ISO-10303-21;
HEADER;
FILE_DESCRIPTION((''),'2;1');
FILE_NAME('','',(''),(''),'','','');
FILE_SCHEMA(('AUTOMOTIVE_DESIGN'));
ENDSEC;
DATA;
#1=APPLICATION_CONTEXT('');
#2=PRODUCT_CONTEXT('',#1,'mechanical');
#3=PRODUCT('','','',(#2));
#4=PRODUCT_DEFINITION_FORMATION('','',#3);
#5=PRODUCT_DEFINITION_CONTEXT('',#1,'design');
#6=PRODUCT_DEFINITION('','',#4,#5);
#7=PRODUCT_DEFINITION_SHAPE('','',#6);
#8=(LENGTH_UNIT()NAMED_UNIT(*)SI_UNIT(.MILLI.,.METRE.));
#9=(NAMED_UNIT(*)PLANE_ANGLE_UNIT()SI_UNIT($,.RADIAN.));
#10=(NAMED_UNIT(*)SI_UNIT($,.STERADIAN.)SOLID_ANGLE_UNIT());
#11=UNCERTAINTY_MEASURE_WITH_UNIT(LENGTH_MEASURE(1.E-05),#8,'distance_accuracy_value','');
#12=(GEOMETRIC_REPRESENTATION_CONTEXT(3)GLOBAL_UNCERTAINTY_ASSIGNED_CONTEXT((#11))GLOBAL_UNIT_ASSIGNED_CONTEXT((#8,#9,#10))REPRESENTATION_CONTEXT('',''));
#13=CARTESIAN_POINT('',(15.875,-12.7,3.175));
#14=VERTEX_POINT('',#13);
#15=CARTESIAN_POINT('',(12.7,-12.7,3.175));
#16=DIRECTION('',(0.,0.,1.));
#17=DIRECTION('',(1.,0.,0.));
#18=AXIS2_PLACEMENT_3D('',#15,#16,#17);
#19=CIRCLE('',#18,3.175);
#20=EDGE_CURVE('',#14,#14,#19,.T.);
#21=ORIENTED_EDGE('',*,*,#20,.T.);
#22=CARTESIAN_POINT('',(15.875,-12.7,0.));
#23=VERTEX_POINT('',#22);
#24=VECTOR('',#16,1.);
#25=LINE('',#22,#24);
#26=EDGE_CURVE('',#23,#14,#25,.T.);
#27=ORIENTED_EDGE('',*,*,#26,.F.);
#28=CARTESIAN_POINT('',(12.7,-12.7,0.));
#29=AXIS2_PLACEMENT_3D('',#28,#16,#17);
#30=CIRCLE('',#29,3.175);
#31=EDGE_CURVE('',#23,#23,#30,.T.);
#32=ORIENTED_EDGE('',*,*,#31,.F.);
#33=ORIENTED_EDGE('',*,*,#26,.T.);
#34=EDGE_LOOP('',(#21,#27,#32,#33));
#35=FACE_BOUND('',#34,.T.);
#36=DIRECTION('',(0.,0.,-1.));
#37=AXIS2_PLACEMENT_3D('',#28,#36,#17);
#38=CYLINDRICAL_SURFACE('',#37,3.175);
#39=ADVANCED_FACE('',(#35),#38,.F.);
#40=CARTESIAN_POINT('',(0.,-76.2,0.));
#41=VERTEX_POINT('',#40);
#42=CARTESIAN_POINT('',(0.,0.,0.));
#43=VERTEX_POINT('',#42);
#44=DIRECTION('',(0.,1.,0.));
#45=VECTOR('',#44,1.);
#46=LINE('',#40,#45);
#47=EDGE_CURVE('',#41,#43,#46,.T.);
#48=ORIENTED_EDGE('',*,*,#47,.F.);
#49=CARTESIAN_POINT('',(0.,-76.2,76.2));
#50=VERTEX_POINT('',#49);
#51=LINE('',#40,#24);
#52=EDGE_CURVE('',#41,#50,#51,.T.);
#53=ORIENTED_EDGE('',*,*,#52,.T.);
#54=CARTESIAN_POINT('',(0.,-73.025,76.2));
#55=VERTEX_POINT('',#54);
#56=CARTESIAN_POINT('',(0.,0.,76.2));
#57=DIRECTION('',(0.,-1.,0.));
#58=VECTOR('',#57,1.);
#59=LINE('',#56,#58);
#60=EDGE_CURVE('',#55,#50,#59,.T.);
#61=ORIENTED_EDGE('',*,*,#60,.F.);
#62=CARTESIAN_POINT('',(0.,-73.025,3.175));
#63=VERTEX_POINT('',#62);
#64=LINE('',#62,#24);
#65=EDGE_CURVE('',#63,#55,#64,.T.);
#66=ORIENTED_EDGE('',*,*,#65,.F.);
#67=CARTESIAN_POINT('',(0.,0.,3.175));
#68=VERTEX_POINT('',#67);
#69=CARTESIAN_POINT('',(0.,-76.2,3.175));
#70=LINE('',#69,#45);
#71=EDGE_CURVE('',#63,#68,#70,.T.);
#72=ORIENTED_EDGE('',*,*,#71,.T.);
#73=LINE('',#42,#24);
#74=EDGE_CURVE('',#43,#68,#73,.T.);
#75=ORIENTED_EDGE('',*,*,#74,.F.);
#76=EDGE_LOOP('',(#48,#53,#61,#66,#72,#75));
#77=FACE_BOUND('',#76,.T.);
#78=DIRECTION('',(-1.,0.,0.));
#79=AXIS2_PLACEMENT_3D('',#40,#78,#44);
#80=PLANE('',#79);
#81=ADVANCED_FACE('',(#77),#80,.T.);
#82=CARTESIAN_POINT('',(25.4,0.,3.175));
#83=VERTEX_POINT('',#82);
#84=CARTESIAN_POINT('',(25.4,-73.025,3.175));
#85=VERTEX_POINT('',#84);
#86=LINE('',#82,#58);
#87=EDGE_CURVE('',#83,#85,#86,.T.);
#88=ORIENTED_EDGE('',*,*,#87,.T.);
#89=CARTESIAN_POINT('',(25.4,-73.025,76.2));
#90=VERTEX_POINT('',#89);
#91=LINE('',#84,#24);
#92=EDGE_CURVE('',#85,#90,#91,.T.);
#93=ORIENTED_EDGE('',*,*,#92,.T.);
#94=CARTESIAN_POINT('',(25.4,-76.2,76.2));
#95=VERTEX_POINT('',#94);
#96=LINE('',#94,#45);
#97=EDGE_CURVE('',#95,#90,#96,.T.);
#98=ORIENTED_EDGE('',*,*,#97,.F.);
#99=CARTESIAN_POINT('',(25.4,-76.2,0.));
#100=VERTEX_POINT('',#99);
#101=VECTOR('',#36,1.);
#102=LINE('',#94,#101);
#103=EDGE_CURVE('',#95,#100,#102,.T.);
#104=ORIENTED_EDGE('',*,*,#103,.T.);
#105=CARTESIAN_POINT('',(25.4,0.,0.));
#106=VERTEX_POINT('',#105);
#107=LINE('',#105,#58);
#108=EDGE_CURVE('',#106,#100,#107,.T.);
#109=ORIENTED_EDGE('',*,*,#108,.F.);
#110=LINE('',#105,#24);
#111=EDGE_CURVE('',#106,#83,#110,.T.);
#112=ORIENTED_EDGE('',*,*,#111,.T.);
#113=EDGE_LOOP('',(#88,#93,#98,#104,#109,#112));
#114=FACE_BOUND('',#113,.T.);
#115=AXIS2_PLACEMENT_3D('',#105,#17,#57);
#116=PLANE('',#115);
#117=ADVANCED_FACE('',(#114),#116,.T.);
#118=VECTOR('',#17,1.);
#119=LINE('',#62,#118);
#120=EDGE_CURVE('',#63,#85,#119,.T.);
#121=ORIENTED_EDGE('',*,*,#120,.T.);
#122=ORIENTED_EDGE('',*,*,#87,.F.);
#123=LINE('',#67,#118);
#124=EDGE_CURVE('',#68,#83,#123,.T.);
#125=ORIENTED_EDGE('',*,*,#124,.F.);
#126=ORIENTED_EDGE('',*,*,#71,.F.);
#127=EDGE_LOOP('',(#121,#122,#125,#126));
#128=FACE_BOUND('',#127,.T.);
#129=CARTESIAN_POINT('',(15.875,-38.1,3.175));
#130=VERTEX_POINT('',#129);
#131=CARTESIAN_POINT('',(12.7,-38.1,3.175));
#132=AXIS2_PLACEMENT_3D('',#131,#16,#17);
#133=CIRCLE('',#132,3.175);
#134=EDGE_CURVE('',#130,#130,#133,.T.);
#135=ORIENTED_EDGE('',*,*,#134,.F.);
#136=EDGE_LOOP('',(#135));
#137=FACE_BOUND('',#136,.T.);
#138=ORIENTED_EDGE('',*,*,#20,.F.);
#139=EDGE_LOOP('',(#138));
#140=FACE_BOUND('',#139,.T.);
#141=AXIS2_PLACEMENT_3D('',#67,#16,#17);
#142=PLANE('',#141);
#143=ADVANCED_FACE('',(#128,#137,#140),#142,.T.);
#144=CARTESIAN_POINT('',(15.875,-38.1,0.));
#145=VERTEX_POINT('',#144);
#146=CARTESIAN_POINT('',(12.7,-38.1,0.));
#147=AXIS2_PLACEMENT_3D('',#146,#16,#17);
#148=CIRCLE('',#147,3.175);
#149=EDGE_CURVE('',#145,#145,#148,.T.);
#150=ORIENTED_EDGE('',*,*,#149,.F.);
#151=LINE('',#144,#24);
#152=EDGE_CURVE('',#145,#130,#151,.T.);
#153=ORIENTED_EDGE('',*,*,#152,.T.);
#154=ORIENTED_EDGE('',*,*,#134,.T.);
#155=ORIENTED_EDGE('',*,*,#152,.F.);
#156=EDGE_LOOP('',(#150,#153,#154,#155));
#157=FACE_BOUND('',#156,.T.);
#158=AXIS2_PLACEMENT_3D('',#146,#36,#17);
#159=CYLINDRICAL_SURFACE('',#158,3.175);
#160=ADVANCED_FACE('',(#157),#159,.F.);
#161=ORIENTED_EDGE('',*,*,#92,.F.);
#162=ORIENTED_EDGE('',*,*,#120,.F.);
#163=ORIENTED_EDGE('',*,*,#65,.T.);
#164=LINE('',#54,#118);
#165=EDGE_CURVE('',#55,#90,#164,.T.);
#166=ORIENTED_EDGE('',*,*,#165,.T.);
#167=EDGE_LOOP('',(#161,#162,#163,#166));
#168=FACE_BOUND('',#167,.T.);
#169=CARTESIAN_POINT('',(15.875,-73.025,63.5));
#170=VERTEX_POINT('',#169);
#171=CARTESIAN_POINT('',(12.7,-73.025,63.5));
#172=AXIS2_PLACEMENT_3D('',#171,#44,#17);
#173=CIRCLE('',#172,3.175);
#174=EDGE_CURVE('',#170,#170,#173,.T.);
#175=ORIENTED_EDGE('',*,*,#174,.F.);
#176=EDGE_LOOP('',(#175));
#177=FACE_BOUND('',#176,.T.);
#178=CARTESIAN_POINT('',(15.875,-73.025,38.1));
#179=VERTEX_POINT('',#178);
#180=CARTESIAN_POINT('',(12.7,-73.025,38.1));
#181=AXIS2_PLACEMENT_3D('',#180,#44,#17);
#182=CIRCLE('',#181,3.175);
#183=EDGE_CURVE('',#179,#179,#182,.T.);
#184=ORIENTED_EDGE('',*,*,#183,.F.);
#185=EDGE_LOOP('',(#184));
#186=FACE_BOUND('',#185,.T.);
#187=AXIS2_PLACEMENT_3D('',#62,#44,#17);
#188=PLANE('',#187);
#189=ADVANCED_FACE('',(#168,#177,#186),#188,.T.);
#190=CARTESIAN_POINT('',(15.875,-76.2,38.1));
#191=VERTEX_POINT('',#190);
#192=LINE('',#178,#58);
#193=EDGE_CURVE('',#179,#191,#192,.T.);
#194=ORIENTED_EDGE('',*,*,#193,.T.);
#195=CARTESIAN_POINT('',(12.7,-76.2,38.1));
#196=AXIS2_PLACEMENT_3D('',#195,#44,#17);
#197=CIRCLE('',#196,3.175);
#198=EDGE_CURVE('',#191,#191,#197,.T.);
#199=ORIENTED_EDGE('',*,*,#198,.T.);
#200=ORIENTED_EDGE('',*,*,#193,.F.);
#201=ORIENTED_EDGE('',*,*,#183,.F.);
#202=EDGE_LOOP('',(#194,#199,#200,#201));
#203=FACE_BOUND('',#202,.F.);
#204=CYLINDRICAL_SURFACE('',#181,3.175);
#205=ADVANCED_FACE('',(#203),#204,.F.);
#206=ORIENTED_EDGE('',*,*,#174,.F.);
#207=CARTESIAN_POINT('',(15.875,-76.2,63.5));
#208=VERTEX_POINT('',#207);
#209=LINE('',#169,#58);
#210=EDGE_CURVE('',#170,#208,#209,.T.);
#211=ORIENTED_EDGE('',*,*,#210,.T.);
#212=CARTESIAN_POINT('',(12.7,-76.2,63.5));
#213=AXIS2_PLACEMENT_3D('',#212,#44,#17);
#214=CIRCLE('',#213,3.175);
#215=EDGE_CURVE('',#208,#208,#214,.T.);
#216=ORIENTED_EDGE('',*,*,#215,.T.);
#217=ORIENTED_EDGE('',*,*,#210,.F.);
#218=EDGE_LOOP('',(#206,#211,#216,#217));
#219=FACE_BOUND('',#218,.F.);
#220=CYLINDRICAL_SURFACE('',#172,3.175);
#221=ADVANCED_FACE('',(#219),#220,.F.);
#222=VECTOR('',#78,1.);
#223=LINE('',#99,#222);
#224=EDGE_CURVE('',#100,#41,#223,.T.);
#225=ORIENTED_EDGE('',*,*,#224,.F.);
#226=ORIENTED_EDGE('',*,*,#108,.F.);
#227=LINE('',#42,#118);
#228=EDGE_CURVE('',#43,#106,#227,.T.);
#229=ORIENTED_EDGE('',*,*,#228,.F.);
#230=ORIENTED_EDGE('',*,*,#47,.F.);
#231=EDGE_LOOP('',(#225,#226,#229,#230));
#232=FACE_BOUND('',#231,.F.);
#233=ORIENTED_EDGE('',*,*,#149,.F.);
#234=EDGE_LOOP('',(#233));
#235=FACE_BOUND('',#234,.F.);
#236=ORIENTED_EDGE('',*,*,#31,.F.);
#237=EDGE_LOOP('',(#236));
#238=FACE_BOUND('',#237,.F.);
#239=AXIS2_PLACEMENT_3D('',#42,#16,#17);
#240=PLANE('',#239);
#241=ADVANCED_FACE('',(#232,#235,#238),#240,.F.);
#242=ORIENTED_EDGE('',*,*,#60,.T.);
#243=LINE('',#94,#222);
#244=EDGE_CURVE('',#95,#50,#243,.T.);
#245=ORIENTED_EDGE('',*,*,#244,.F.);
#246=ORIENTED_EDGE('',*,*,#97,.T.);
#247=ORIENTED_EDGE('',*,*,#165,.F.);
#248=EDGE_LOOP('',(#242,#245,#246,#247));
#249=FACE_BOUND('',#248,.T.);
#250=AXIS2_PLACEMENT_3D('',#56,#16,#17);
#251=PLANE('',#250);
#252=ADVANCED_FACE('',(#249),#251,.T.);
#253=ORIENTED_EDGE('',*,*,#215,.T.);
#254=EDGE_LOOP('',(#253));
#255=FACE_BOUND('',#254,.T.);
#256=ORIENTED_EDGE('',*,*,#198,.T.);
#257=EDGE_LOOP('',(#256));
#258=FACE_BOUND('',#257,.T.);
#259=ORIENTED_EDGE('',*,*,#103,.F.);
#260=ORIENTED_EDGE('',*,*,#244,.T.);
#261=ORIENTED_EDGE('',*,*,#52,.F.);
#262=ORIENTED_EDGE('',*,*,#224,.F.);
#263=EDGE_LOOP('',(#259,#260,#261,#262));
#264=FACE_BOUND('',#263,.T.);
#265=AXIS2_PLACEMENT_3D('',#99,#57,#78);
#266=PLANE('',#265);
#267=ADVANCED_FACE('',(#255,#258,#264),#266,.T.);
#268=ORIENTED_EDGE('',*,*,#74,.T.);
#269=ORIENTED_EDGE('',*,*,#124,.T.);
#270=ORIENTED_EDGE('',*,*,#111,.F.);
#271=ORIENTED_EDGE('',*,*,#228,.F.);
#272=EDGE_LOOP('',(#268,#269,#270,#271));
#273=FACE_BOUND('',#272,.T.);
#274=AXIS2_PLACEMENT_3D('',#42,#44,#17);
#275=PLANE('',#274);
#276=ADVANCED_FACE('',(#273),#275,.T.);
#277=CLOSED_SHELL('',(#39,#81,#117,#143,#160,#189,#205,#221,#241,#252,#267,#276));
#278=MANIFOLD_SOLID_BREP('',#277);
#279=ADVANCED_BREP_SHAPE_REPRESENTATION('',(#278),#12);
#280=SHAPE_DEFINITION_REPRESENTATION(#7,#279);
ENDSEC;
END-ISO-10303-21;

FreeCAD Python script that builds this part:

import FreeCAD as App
import Part
import Sketcher

V = App.Vector
Q = App.Units.Quantity

doc = App.newDocument("Part")
body = doc.addObject("PartDesign::Body", "Body")

# Sketch on XY plane
sketch1 = body.newObject("Sketcher::SketchObject", "Sketch")
sketch1.AttachmentSupport = (doc.getObject("XY_Plane"), [""])
sketch1.MapMode = "FlatFace"
sketch1.addGeometry([
    Part.LineSegment(V(25.4, 0, 0), V(0, 0, 0)),  # 0
    Part.LineSegment(V(0, 0, 0), V(0, -76.2, 0)),  # 1
    Part.LineSegment(V(0, -76.2, 0), V(25.4, -76.2, 0)),  # 2
    Part.LineSegment(V(25.4, -76.2, 0), V(25.4, 0, 0)),  # 3
    Part.Circle(V(12.7, -38.1, 0), V(0, 0, 1), 3.2),  # 4
    Part.Circle(V(12.7, -12.7, 0), V(0, 0, 1), 3.2),  # 5
], False)
sketch1.addConstraint([
    Sketcher.Constraint("Coincident", 0, 2, 1, 1),
    Sketcher.Constraint("Coincident", 1, 2, 2, 1),
    Sketcher.Constraint("Coincident", 2, 2, 3, 1),
    Sketcher.Constraint("Coincident", 3, 2, 0, 1),
    Sketcher.Constraint("Horizontal", 0),
    Sketcher.Constraint("Vertical", 1),
    Sketcher.Constraint("Horizontal", 2),
    Sketcher.Constraint("Vertical", 3),
    Sketcher.Constraint("Coincident", 0, 2, -1, 1),
    Sketcher.Constraint("Equal", 4, 5),
    Sketcher.Constraint("Vertical", 4, 3, 5, 3),
    Sketcher.Constraint("Diameter", 4, Q("0.25 in")),
    Sketcher.Constraint("DistanceX", 0, 2, 0, 1, Q("1 in")),
    Sketcher.Constraint("DistanceY", 1, 2, 1, 1, Q("3 in")),
    Sketcher.Constraint("DistanceY", 4, 3, 5, 3, Q("1 in")),
    Sketcher.Constraint("DistanceX", -1, 1, 4, 3, Q("0.5 in")),
    Sketcher.Constraint("DistanceY", 5, 3, -1, 1, Q("0.5 in")),
])
pad1 = body.newObject("PartDesign::Pad", "Pad")
pad1.Profile = sketch1
pad1.Length = Q("0.125 in")

# Sketch on XY plane
sketch2 = body.newObject("Sketcher::SketchObject", "Sketch001")
sketch2.AttachmentSupport = (doc.getObject("XY_Plane"), [""])
sketch2.MapMode = "FlatFace"
sketch2.AttachmentOffset = App.Placement(V(0, 0, 0.125 * 25.4), App.Rotation())
sketch2.addGeometry([
    Part.LineSegment(V(0, -76.2, 0), V(25.4, -76.2, 0)),
    Part.LineSegment(V(25.4, -76.2, 0), V(25.4, -73, 0)),
    Part.LineSegment(V(25.4, -73, 0), V(0, -73, 0)),
    Part.LineSegment(V(0, -73, 0), V(0, -76.2, 0)),
], False)
sketch2.addConstraint([
    Sketcher.Constraint("Coincident", 0, 2, 1, 1),
    Sketcher.Constraint("Coincident", 1, 2, 2, 1),
    Sketcher.Constraint("Coincident", 2, 2, 3, 1),
    Sketcher.Constraint("Coincident", 3, 2, 0, 1),
    Sketcher.Constraint("Horizontal", 0),
    Sketcher.Constraint("Vertical", 1),
    Sketcher.Constraint("Horizontal", 2),
    Sketcher.Constraint("Vertical", 3),
    Sketcher.Constraint("PointOnObject", 2, 2, -2),
    Sketcher.Constraint("DistanceX", 0, 1, 0, 2, Q("1 in")),
    Sketcher.Constraint("DistanceY", 1, 1, 1, 2, Q("0.125 in")),
    Sketcher.Constraint("DistanceY", 0, 2, -1, 1, Q("3 in")),
])
pad2 = body.newObject("PartDesign::Pad", "Pad001")
pad2.Profile = sketch2
pad2.Length = Q("2.875 in")

# Sketch on XZ plane
sketch3 = body.newObject("Sketcher::SketchObject", "Sketch002")
sketch3.AttachmentSupport = (doc.getObject("XZ_Plane"), [""])
sketch3.MapMode = "FlatFace"
sketch3.AttachmentOffset = App.Placement(V(0, 0, 2.875 * 25.4), App.Rotation())
sketch3.addGeometry([
    Part.Circle(V(12.7, 63.5, 0), V(0, 0, 1), 3.2),
    Part.Circle(V(12.7, 38.1, 0), V(0, 0, 1), 3.2),
], False)
sketch3.addConstraint([
    Sketcher.Constraint("Equal", 0, 1),
    Sketcher.Constraint("Vertical", 0, 3, 1, 3),
    Sketcher.Constraint("Diameter", 0, Q("0.25 in")),
    Sketcher.Constraint("DistanceY", 1, 3, 0, 3, Q("1 in")),
    Sketcher.Constraint("DistanceX", -1, 1, 0, 3, Q("0.5 in")),
    Sketcher.Constraint("DistanceY", -1, 1, 0, 3, Q("2.5 in")),
])
pocket1 = body.newObject("PartDesign::Pocket", "Pocket")
pocket1.Profile = sketch3
pocket1.Length = Q("2.875 in")
pocket1.Reversed = True

doc.recompute()
